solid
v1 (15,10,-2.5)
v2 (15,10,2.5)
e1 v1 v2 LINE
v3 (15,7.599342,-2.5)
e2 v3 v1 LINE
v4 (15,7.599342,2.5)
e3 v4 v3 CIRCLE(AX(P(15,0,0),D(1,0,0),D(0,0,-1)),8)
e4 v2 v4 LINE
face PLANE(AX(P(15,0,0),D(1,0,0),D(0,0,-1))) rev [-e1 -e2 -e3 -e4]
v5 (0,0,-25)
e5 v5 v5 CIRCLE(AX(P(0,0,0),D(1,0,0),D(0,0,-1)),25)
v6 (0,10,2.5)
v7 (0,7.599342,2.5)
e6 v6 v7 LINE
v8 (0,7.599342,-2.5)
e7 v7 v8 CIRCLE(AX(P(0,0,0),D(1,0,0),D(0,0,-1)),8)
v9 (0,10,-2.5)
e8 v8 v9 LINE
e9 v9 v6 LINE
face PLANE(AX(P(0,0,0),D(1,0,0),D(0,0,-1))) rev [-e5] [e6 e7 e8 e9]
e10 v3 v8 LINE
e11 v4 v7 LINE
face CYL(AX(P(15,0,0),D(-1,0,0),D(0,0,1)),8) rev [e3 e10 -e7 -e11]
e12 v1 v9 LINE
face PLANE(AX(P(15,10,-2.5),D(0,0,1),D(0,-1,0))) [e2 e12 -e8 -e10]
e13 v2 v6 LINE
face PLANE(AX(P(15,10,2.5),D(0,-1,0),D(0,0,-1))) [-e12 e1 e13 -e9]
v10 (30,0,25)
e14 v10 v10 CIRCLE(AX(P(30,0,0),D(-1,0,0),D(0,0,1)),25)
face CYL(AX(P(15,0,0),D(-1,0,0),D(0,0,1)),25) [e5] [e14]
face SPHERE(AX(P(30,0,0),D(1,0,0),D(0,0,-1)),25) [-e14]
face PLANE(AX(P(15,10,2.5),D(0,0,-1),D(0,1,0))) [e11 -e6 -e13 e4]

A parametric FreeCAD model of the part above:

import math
import FreeCAD as App
import Part
import Sketcher


def edges_at(feature, points):
    """Names of the edges that pass closest to the given points."""
    edges = feature.Shape.Edges
    near = lambda p: min(range(len(edges)), key=lambda i: edges[i].distToShape(Part.Vertex(*p))[0])
    return sorted({f"Edge{near(p) + 1}" for p in points})

doc = App.newDocument("Part")
body = doc.addObject("PartDesign::Body", "Body")

sketch1 = doc.addObject("Sketcher::SketchObject", "Sketch")
body.addObject(sketch1)
sketch1.AttachmentSupport = (doc.YZ_Plane, [""])
sketch1.MapMode = "FlatFace"
sketch1.addGeometry([
    Part.Circle(App.Vector(0, 0, 0), App.Vector(0, 0, 1), 25),
    Part.LineSegment(App.Vector(7.6, 2.5, 0), App.Vector(10, 2.5, 0)),
    Part.LineSegment(App.Vector(10, 2.5, 0), App.Vector(10, -2.5, 0)),
    Part.LineSegment(App.Vector(10, -2.5, 0), App.Vector(7.6, -2.5, 0)),
    Part.ArcOfCircle(Part.Circle(App.Vector(0, 0, 0), App.Vector(0, 0, 1), 8), math.radians(18), math.radians(342)),
], False)
sketch1.addConstraint([
    Sketcher.Constraint("Coincident", 1, 2, 2, 1),
    Sketcher.Constraint("Coincident", 2, 2, 3, 1),
    Sketcher.Constraint("Coincident", 3, 2, 4, 2),
    Sketcher.Constraint("Coincident", 4, 1, 1, 1),
    Sketcher.Constraint("Horizontal", 1),
    Sketcher.Constraint("Vertical", 2),
    Sketcher.Constraint("Horizontal", 3),
    Sketcher.Constraint("Coincident", 0, 3, -1, 1),
    Sketcher.Constraint("Coincident", 4, 3, -1, 1),
    Sketcher.Constraint("Vertical", 3, 2, 4, 1),
    Sketcher.Constraint("Diameter", 0, 50.0),
    Sketcher.Constraint("Radius", 4, 8.0),
    Sketcher.Constraint("DistanceY", 2, 2, 2, 1, 5.0),
    Sketcher.Constraint("DistanceX", -1, 1, 1, 2, 10.0),
])
pad1 = doc.addObject("PartDesign::Pad", "Pad")
body.addObject(pad1)
pad1.Profile = sketch1
pad1.Length = 15

sketch2 = doc.addObject("Sketcher::SketchObject", "Sketch001")
body.addObject(sketch2)
sketch2.AttachmentSupport = (doc.YZ_Plane, [""])
sketch2.MapMode = "FlatFace"
sketch2.AttachmentOffset = App.Placement(App.Vector(0, 0, 15), App.Rotation())
sketch2.addGeometry(Part.Circle(App.Vector(0, 0, 0), App.Vector(0, 0, 1), 25), False)
sketch2.addConstraint([
    Sketcher.Constraint("Coincident", 0, 3, -1, 1),
    Sketcher.Constraint("Diameter", 0, 50.0),
])
pad2 = doc.addObject("PartDesign::Pad", "Pad001")
body.addObject(pad2)
pad2.Profile = sketch2
pad2.Length = 40
doc.recompute()

fillet = doc.addObject("PartDesign::Fillet", "Fillet")
body.addObject(fillet)
fillet.Base = (pad2, edges_at(pad2, [(55, 0, 25)]))
fillet.Radius = 25

doc.recompute()
